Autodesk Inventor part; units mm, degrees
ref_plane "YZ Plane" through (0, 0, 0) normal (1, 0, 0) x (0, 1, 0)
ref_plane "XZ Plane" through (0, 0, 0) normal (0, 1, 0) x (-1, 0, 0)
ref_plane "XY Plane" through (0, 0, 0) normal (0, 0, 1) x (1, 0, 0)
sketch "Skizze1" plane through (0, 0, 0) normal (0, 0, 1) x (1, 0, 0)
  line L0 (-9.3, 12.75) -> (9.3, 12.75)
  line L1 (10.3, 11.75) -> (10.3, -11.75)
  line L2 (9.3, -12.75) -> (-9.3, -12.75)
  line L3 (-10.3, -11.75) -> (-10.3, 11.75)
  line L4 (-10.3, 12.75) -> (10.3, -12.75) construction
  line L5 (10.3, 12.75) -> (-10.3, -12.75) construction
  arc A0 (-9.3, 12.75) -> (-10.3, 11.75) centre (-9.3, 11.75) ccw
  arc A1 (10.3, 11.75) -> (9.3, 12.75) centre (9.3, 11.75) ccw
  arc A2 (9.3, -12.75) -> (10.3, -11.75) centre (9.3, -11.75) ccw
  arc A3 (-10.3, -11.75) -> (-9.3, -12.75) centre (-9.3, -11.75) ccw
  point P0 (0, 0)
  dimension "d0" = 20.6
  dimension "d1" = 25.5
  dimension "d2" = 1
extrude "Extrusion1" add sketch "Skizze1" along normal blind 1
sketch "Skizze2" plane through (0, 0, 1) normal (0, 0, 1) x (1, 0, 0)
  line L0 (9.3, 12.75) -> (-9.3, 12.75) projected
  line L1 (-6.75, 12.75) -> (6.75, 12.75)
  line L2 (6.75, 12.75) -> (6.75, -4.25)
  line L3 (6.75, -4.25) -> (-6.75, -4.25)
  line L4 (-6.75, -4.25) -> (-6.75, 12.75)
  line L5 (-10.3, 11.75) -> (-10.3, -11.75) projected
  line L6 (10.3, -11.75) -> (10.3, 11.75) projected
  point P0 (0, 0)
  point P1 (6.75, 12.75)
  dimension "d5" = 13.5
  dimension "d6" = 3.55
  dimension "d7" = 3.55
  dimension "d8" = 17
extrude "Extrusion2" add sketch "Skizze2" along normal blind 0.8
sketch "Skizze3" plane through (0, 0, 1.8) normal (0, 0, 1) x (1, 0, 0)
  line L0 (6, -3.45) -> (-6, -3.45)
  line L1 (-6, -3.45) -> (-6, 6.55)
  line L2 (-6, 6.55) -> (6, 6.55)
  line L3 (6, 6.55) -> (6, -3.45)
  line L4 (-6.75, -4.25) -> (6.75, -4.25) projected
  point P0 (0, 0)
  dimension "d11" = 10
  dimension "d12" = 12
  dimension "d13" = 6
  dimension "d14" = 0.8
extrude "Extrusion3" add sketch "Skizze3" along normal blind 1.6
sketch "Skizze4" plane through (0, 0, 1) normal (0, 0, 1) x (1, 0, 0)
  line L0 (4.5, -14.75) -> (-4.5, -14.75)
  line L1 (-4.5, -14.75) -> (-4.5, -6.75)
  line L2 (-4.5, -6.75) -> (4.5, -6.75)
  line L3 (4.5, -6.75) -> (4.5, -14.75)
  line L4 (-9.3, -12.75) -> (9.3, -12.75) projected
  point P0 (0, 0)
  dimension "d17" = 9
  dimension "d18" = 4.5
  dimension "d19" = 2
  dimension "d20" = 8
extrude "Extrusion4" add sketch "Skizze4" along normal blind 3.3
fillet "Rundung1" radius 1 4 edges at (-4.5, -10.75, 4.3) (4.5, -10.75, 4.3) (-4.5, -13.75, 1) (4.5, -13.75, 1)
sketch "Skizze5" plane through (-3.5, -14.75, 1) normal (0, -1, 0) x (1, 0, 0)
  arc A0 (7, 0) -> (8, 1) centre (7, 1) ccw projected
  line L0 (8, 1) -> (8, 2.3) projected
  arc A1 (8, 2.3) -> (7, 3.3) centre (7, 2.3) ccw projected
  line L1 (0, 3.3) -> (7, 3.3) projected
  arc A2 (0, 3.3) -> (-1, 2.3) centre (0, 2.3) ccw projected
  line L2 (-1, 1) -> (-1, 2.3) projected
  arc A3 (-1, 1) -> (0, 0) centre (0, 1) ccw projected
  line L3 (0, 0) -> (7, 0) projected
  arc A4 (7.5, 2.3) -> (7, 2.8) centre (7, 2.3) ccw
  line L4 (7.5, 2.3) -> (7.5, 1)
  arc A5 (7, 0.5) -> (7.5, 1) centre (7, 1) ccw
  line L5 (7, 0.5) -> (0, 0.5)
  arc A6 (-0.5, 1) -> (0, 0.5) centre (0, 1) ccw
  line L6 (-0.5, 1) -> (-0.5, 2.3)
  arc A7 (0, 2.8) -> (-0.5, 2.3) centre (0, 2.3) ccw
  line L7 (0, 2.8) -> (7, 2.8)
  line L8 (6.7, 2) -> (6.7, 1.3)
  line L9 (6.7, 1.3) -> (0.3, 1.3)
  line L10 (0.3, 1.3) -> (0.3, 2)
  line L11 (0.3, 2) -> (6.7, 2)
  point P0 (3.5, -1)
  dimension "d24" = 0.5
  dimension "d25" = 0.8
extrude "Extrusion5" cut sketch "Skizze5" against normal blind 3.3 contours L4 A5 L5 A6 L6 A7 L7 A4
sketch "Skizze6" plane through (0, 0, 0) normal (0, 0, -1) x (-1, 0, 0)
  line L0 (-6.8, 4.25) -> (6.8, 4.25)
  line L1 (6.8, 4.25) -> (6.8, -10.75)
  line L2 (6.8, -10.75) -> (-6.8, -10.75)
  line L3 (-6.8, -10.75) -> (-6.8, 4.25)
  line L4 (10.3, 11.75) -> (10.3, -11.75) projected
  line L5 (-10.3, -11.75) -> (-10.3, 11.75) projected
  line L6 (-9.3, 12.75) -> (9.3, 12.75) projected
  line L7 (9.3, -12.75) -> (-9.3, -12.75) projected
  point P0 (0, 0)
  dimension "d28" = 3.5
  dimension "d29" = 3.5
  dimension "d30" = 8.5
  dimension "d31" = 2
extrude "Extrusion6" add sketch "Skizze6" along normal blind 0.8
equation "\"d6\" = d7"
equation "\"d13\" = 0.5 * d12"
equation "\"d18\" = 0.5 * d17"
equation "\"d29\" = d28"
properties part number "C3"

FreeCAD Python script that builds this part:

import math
import FreeCAD as App
import Part
import Sketcher
Q = App.Units.Quantity


def edges_at(feature, points):
    """Names of the edges that pass closest to the given points."""
    edges = feature.Shape.Edges
    near = lambda p: min(range(len(edges)), key=lambda i: edges[i].distToShape(Part.Vertex(*p))[0])
    return sorted({f"Edge{near(p) + 1}" for p in points})

doc = App.newDocument("Part")
body = doc.addObject("PartDesign::Body", "Body")

# Sketch on XY plane
sketch1 = body.newObject("Sketcher::SketchObject", "Sketch")
sketch1.AttachmentSupport = (doc.getObject("XY_Plane"), [""])
sketch1.MapMode = "FlatFace"
sketch1.addGeometry(Part.LineSegment(App.Vector(9.3, 12.8, 0), App.Vector(-9.3, 12.8, 0)), False)
sketch1.addGeometry(Part.ArcOfCircle(Part.Circle(App.Vector(-9.3, 11.8, 0), App.Vector(0, 0, 1), 1), math.radians(90), math.radians(180)), False)
sketch1.addGeometry(Part.LineSegment(App.Vector(-10.3, 11.8, 0), App.Vector(-10.3, -11.8, 0)), False)
sketch1.addGeometry(Part.ArcOfCircle(Part.Circle(App.Vector(-9.3, -11.8, 0), App.Vector(0, 0, 1), 1), math.radians(180), math.radians(270)), False)
sketch1.addGeometry(Part.LineSegment(App.Vector(-9.3, -12.8, 0), App.Vector(9.3, -12.8, 0)), False)
sketch1.addGeometry(Part.ArcOfCircle(Part.Circle(App.Vector(9.3, -11.8, 0), App.Vector(0, 0, 1), 1), math.radians(-90), math.radians(0)), False)
sketch1.addGeometry(Part.LineSegment(App.Vector(10.3, -11.8, 0), App.Vector(10.3, 11.8, 0)), False)
sketch1.addGeometry(Part.ArcOfCircle(Part.Circle(App.Vector(9.3, 11.8, 0), App.Vector(0, 0, 1), 1), math.radians(0), math.radians(90)), False)
sketch1.addConstraint(Sketcher.Constraint("Tangent", 0, 2, 1, 1))
sketch1.addConstraint(Sketcher.Constraint("Tangent", 1, 2, 2, 1))
sketch1.addConstraint(Sketcher.Constraint("Tangent", 2, 2, 3, 1))
sketch1.addConstraint(Sketcher.Constraint("Tangent", 3, 2, 4, 1))
sketch1.addConstraint(Sketcher.Constraint("Tangent", 4, 2, 5, 1))
sketch1.addConstraint(Sketcher.Constraint("Tangent", 5, 2, 6, 1))
sketch1.addConstraint(Sketcher.Constraint("Tangent", 6, 2, 7, 1))
sketch1.addConstraint(Sketcher.Constraint("Tangent", 7, 2, 0, 1))
sketch1.addConstraint(Sketcher.Constraint("Horizontal", 0))
sketch1.addConstraint(Sketcher.Constraint("Vertical", 2))
sketch1.addConstraint(Sketcher.Constraint("Horizontal", 4))
sketch1.addConstraint(Sketcher.Constraint("Vertical", 6))
sketch1.addConstraint(Sketcher.Constraint("Equal", 1, 3))
sketch1.addConstraint(Sketcher.Constraint("Equal", 3, 5))
sketch1.addConstraint(Sketcher.Constraint("Equal", 5, 7))
sketch1.addConstraint(Sketcher.Constraint("Symmetric", 1, 3, 5, 3, -1, 1))
sketch1.addConstraint(Sketcher.Constraint("Radius", 1, Q("1 mm")))
sketch1.addConstraint(Sketcher.Constraint("DistanceX", 2, 2, 5, 2, Q("20.6 mm")))
sketch1.addConstraint(Sketcher.Constraint("DistanceY", 2, 2, 2, 1, Q("23.5 mm")))
pad1 = body.newObject("PartDesign::Pad", "Pad")
pad1.Profile = sketch1
pad1.Length = 1

# Sketch on XY plane
sketch2 = body.newObject("Sketcher::SketchObject", "Sketch001")
sketch2.AttachmentSupport = (doc.getObject("XY_Plane"), [""])
sketch2.MapMode = "FlatFace"
sketch2.AttachmentOffset = App.Placement(App.Vector(0, 0, 1), App.Rotation())
sketch2.addGeometry(Part.LineSegment(App.Vector(7, -4, 0), App.Vector(7, 13, 0)), False)
sketch2.addGeometry(Part.LineSegment(App.Vector(7, 13, 0), App.Vector(-7, 13, 0)), False)
sketch2.addGeometry(Part.LineSegment(App.Vector(-7, 13, 0), App.Vector(-7, -4, 0)), False)
sketch2.addGeometry(Part.LineSegment(App.Vector(-7, -4, 0), App.Vector(7, -4, 0)), False)
sketch2.addConstraint(Sketcher.Constraint("Coincident", 0, 2, 1, 1))
sketch2.addConstraint(Sketcher.Constraint("Coincident", 1, 2, 2, 1))
sketch2.addConstraint(Sketcher.Constraint("Coincident", 2, 2, 3, 1))
sketch2.addConstraint(Sketcher.Constraint("Coincident", 3, 2, 0, 1))
sketch2.addConstraint(Sketcher.Constraint("Vertical", 0))
sketch2.addConstraint(Sketcher.Constraint("Horizontal", 1))
sketch2.addConstraint(Sketcher.Constraint("Vertical", 2))
sketch2.addConstraint(Sketcher.Constraint("Horizontal", 3))
sketch2.addConstraint(Sketcher.Constraint("DistanceY", 0, 1, 0, 2, Q("17 mm")))
sketch2.addConstraint(Sketcher.Constraint("DistanceX", 1, 2, 1, 1, Q("13.5 mm")))
sketch2.addConstraint(Sketcher.Constraint("DistanceX", -1, 1, 0, 2, Q("6.75 mm")))
sketch2.addConstraint(Sketcher.Constraint("DistanceY", -1, 1, 0, 2, Q("12.75 mm")))
pad2 = body.newObject("PartDesign::Pad", "Pad001")
pad2.Profile = sketch2
pad2.Length = 0.8

# Sketch on XY plane
sketch3 = body.newObject("Sketcher::SketchObject", "Sketch002")
sketch3.AttachmentSupport = (doc.getObject("XY_Plane"), [""])
sketch3.MapMode = "FlatFace"
sketch3.AttachmentOffset = App.Placement(App.Vector(0, 0, 1.8), App.Rotation())
sketch3.addGeometry(Part.LineSegment(App.Vector(-6, -3, 0), App.Vector(6, -3, 0)), False)
sketch3.addGeometry(Part.LineSegment(App.Vector(6, -3, 0), App.Vector(6, 7, 0)), False)
sketch3.addGeometry(Part.LineSegment(App.Vector(6, 7, 0), App.Vector(-6, 7, 0)), False)
sketch3.addGeometry(Part.LineSegment(App.Vector(-6, 7, 0), App.Vector(-6, -3, 0)), False)
sketch3.addConstraint(Sketcher.Constraint("Coincident", 0, 2, 1, 1))
sketch3.addConstraint(Sketcher.Constraint("Coincident", 1, 2, 2, 1))
sketch3.addConstraint(Sketcher.Constraint("Coincident", 2, 2, 3, 1))
sketch3.addConstraint(Sketcher.Constraint("Coincident", 3, 2, 0, 1))
sketch3.addConstraint(Sketcher.Constraint("Horizontal", 0))
sketch3.addConstraint(Sketcher.Constraint("Vertical", 1))
sketch3.addConstraint(Sketcher.Constraint("Horizontal", 2))
sketch3.addConstraint(Sketcher.Constraint("Vertical", 3))
sketch3.addConstraint(Sketcher.Constraint("DistanceX", 0, 1, 0, 2, Q("12 mm")))
sketch3.addConstraint(Sketcher.Constraint("DistanceY", 1, 1, 1, 2, Q("10 mm")))
sketch3.addConstraint(Sketcher.Constraint("DistanceX", -1, 1, 0, 2, Q("6 mm")))
sketch3.addConstraint(Sketcher.Constraint("DistanceY", 0, 2, -1, 1, Q("3.45 mm")))
pad3 = body.newObject("PartDesign::Pad", "Pad002")
pad3.Profile = sketch3
pad3.Length = 1.6

# Sketch on XY plane
sketch4 = body.newObject("Sketcher::SketchObject", "Sketch003")
sketch4.AttachmentSupport = (doc.getObject("XY_Plane"), [""])
sketch4.MapMode = "FlatFace"
sketch4.AttachmentOffset = App.Placement(App.Vector(0, 0, 1), App.Rotation())
sketch4.addGeometry(Part.LineSegment(App.Vector(-4, -15, 0), App.Vector(4, -15, 0)), False)
sketch4.addGeometry(Part.LineSegment(App.Vector(4, -15, 0), App.Vector(4, -7, 0)), False)
sketch4.addGeometry(Part.LineSegment(App.Vector(4, -7, 0), App.Vector(-4, -7, 0)), False)
sketch4.addGeometry(Part.LineSegment(App.Vector(-4, -7, 0), App.Vector(-4, -15, 0)), False)
sketch4.addConstraint(Sketcher.Constraint("Coincident", 0, 2, 1, 1))
sketch4.addConstraint(Sketcher.Constraint("Coincident", 1, 2, 2, 1))
sketch4.addConstraint(Sketcher.Constraint("Coincident", 2, 2, 3, 1))
sketch4.addConstraint(Sketcher.Constraint("Coincident", 3, 2, 0, 1))
sketch4.addConstraint(Sketcher.Constraint("Horizontal", 0))
sketch4.addConstraint(Sketcher.Constraint("Vertical", 1))
sketch4.addConstraint(Sketcher.Constraint("Horizontal", 2))
sketch4.addConstraint(Sketcher.Constraint("Vertical", 3))
sketch4.addConstraint(Sketcher.Constraint("DistanceX", 0, 1, 0, 2, Q("9 mm")))
sketch4.addConstraint(Sketcher.Constraint("DistanceY", 1, 1, 1, 2, Q("8 mm")))
sketch4.addConstraint(Sketcher.Constraint("DistanceX", -1, 1, 0, 2, Q("4.5 mm")))
sketch4.addConstraint(Sketcher.Constraint("DistanceY", 0, 2, -1, 1, Q("14.75 mm")))
pad4 = body.newObject("PartDesign::Pad", "Pad003")
pad4.Profile = sketch4
pad4.Length = 3.3
doc.recompute()

fillet = body.newObject("PartDesign::Fillet", "Fillet")
fillet.Base = (pad4, edges_at(pad4, [
    (-4.5, -10.75, 4.3),
    (4.5, -10.75, 4.3),
    (-4.5, -13.75, 1),
    (4.5, -13.75, 1),
]))
fillet.Radius = 1

# Sketch on XZ plane
sketch5 = body.newObject("Sketcher::SketchObject", "Sketch004")
sketch5.AttachmentSupport = (doc.getObject("XZ_Plane"), [""])
sketch5.MapMode = "FlatFace"
sketch5.AttachmentOffset = App.Placement(App.Vector(0, 0, 14.75), App.Rotation())
sketch5.addGeometry(Part.LineSegment(App.Vector(4, 2, 0), App.Vector(4, 3.3, 0)), False)
sketch5.addGeometry(Part.ArcOfCircle(Part.Circle(App.Vector(3.5, 3.3, 0), App.Vector(0, 0, 1), 0.5), math.radians(0), math.radians(90)), False)
sketch5.addGeometry(Part.LineSegment(App.Vector(3.5, 3.8, 0), App.Vector(-3.5, 3.8, 0)), False)
sketch5.addGeometry(Part.ArcOfCircle(Part.Circle(App.Vector(-3.5, 3.3, 0), App.Vector(0, 0, 1), 0.5), math.radians(90), math.radians(180)), False)
sketch5.addGeometry(Part.LineSegment(App.Vector(-4, 3.3, 0), App.Vector(-4, 2, 0)), False)
sketch5.addGeometry(Part.ArcOfCircle(Part.Circle(App.Vector(-3.5, 2, 0), App.Vector(0, 0, 1), 0.5), math.radians(180), math.radians(270)), False)
sketch5.addGeometry(Part.LineSegment(App.Vector(-3.5, 1.5, 0), App.Vector(3.5, 1.5, 0)), False)
sketch5.addGeometry(Part.ArcOfCircle(Part.Circle(App.Vector(3.5, 2, 0), App.Vector(0, 0, 1), 0.5), math.radians(-90), math.radians(0)), False)
sketch5.addGeometry(Part.LineSegment(App.Vector(-3.2, 3, 0), App.Vector(3.2, 3, 0)), False)
sketch5.addGeometry(Part.LineSegment(App.Vector(3.2, 3, 0), App.Vector(3.2, 2.3, 0)), False)
sketch5.addGeometry(Part.LineSegment(App.Vector(3.2, 2.3, 0), App.Vector(-3.2, 2.3, 0)), False)
sketch5.addGeometry(Part.LineSegment(App.Vector(-3.2, 2.3, 0), App.Vector(-3.2, 3, 0)), False)
sketch5.addConstraint(Sketcher.Constraint("Tangent", 0, 2, 1, 1))
sketch5.addConstraint(Sketcher.Constraint("Tangent", 1, 2, 2, 1))
sketch5.addConstraint(Sketcher.Constraint("Tangent", 2, 2, 3, 1))
sketch5.addConstraint(Sketcher.Constraint("Tangent", 3, 2, 4, 1))
sketch5.addConstraint(Sketcher.Constraint("Tangent", 4, 2, 5, 1))
sketch5.addConstraint(Sketcher.Constraint("Tangent", 5, 2, 6, 1))
sketch5.addConstraint(Sketcher.Constraint("Tangent", 6, 2, 7, 1))
sketch5.addConstraint(Sketcher.Constraint("Tangent", 7, 2, 0, 1))
sketch5.addConstraint(Sketcher.Constraint("Coincident", 8, 2, 9, 1))
sketch5.addConstraint(Sketcher.Constraint("Coincident", 9, 2, 10, 1))
sketch5.addConstraint(Sketcher.Constraint("Coincident", 10, 2, 11, 1))
sketch5.addConstraint(Sketcher.Constraint("Coincident", 11, 2, 8, 1))
sketch5.addConstraint(Sketcher.Constraint("Vertical", 0))
sketch5.addConstraint(Sketcher.Constraint("Horizontal", 2))
sketch5.addConstraint(Sketcher.Constraint("Vertical", 4))
sketch5.addConstraint(Sketcher.Constraint("Horizontal", 6))
sketch5.addConstraint(Sketcher.Constraint("Horizontal", 8))
sketch5.addConstraint(Sketcher.Constraint("Vertical", 9))
sketch5.addConstraint(Sketcher.Constraint("Horizontal", 10))
sketch5.addConstraint(Sketcher.Constraint("Vertical", 11))
sketch5.addConstraint(Sketcher.Constraint("Equal", 1, 3))
sketch5.addConstraint(Sketcher.Constraint("Equal", 3, 5))
sketch5.addConstraint(Sketcher.Constraint("Equal", 5, 7))
sketch5.addConstraint(Sketcher.Constraint("Radius", 1, Q("0.5 mm")))
sketch5.addConstraint(Sketcher.Constraint("DistanceX", 8, 2, 0, 2, Q("0.8 mm")))
sketch5.addConstraint(Sketcher.Constraint("DistanceY", 8, 2, 1, 2, Q("0.8 mm")))
sketch5.addConstraint(Sketcher.Constraint("DistanceY", 6, 2, 9, 2, Q("0.8 mm")))
sketch5.addConstraint(Sketcher.Constraint("DistanceX", 4, 2, 10, 2, Q("0.8 mm")))
sketch5.addConstraint(Sketcher.Constraint("DistanceX", 2, 2, 2, 1, Q("7 mm")))
sketch5.addConstraint(Sketcher.Constraint("DistanceY", 0, 1, 0, 2, Q("1.3 mm")))
sketch5.addConstraint(Sketcher.Constraint("DistanceY", -1, 1, 5, 3, Q("2 mm")))
sketch5.addConstraint(Sketcher.Constraint("DistanceX", -1, 1, 0, 2, Q("4 mm")))
pocket1 = body.newObject("PartDesign::Pocket", "Pocket")
pocket1.Profile = sketch5
pocket1.Length = 3.3

# Sketch on XY plane
sketch6 = body.newObject("Sketcher::SketchObject", "Sketch005")
sketch6.AttachmentSupport = (doc.getObject("XY_Plane"), [""])
sketch6.MapMode = "FlatFace"
sketch6.addGeometry(Part.LineSegment(App.Vector(-7, 4, 0), App.Vector(7, 4, 0)), False)
sketch6.addGeometry(Part.LineSegment(App.Vector(7, 4, 0), App.Vector(7, -11, 0)), False)
sketch6.addGeometry(Part.LineSegment(App.Vector(7, -11, 0), App.Vector(-7, -11, 0)), False)
sketch6.addGeometry(Part.LineSegment(App.Vector(-7, -11, 0), App.Vector(-7, 4, 0)), False)
sketch6.addConstraint(Sketcher.Constraint("Coincident", 0, 2, 1, 1))
sketch6.addConstraint(Sketcher.Constraint("Coincident", 1, 2, 2, 1))
sketch6.addConstraint(Sketcher.Constraint("Coincident", 2, 2, 3, 1))
sketch6.addConstraint(Sketcher.Constraint("Coincident", 3, 2, 0, 1))
sketch6.addConstraint(Sketcher.Constraint("Horizontal", 0))
sketch6.addConstraint(Sketcher.Constraint("Vertical", 1))
sketch6.addConstraint(Sketcher.Constraint("Horizontal", 2))
sketch6.addConstraint(Sketcher.Constraint("Vertical", 3))
sketch6.addConstraint(Sketcher.Constraint("DistanceY", 1, 2, 1, 1, Q("15 mm")))
sketch6.addConstraint(Sketcher.Constraint("DistanceX", 0, 1, 0, 2, Q("13.6 mm")))
sketch6.addConstraint(Sketcher.Constraint("DistanceX", -1, 1, 0, 2, Q("6.8 mm")))
sketch6.addConstraint(Sketcher.Constraint("DistanceY", -1, 1, 0, 2, Q("4.25 mm")))
pad5 = body.newObject("PartDesign::Pad", "Pad004")
pad5.Profile = sketch6
pad5.Length = 0.8
pad5.Reversed = True

doc.recompute()
